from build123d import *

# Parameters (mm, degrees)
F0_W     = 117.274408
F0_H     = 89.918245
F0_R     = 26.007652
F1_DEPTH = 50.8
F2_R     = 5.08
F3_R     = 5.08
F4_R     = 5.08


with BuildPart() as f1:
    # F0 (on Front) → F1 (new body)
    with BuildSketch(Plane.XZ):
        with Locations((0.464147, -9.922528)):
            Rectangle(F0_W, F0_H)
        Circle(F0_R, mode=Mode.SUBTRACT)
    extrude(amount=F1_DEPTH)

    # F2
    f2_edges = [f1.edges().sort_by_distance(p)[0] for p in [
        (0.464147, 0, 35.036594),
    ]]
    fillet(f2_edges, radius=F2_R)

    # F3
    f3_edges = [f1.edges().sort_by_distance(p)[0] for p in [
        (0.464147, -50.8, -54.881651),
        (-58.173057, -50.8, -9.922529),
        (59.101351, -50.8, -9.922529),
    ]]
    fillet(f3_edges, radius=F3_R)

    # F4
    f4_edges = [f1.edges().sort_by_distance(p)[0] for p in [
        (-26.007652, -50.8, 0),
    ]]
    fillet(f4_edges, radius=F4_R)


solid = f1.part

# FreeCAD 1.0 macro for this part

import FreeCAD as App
import Part
import Sketcher


def edges_at(feature, points):
    """Names of the edges that pass closest to the given points."""
    edges = feature.Shape.Edges
    near = lambda p: min(range(len(edges)), key=lambda i: edges[i].distToShape(Part.Vertex(*p))[0])
    return sorted({f"Edge{near(p) + 1}" for p in points})

doc = App.newDocument("Part")
params = doc.addObject("Spreadsheet::Sheet", "Params")
for row, (alias, value) in enumerate([
    ("pad1_length", "2 in"),
    ("fillet_radius", "0.2 in"),
    ("fillet2_radius", "0.2 in"),
    ("fillet3_radius", "0.2 in"),
], start=1):
    params.set(f"A{row}", alias)
    params.set(f"B{row}", "=" + value)
    params.setAlias(f"B{row}", alias)

body = doc.addObject("PartDesign::Body", "Body")

# Sketch on XZ plane
sketch1 = body.newObject("Sketcher::SketchObject", "Sketch")
sketch1.AttachmentSupport = (doc.getObject("XZ_Plane"), [""])
sketch1.MapMode = "FlatFace"
sketch1.addGeometry([
    Part.LineSegment(App.Vector(-58, 35, 0), App.Vector(-58, -55, 0)),  # 0
    Part.LineSegment(App.Vector(-58, -55, 0), App.Vector(59, -55, 0)),  # 1
    Part.LineSegment(App.Vector(59, -55, 0), App.Vector(59, 35, 0)),  # 2
    Part.LineSegment(App.Vector(59, 35, 0), App.Vector(-58, 35, 0)),  # 3
    Part.Circle(App.Vector(0, 0, 0), App.Vector(0, 0, 1), 26),  # 4
], False)
sketch1.addConstraint([
    Sketcher.Constraint("Coincident", 0, 2, 1, 1),
    Sketcher.Constraint("Coincident", 1, 2, 2, 1),
    Sketcher.Constraint("Coincident", 2, 2, 3, 1),
    Sketcher.Constraint("Coincident", 3, 2, 0, 1),
    Sketcher.Constraint("Vertical", 0),
    Sketcher.Constraint("Horizontal", 1),
    Sketcher.Constraint("Vertical", 2),
    Sketcher.Constraint("Horizontal", 3),
    Sketcher.Constraint("Coincident", 4, 3, -1, 1),
    Sketcher.Constraint("Diameter", 4, 52.015304),
    Sketcher.Constraint("DistanceX", 1, 1, 1, 2, 117.274408),
    Sketcher.Constraint("DistanceY", 0, 2, 0, 1, 89.918245),
    Sketcher.Constraint("DistanceY", 0, 2, -1, 1, 54.88165),
    Sketcher.Constraint("DistanceX", -1, 1, 1, 2, 59.101351),
])
pad1 = body.newObject("PartDesign::Pad", "Pad")
pad1.Profile = sketch1
pad1.setExpression("Length", "Params.pad1_length")
doc.recompute()

fillet = body.newObject("PartDesign::Fillet", "Fillet")
fillet.Base = (pad1, edges_at(pad1, [(0.464, 0, 35.037)]))
fillet.setExpression("Radius", "Params.fillet_radius")
doc.recompute()

fillet2 = body.newObject("PartDesign::Fillet", "Fillet001")
fillet2.Base = (fillet, edges_at(fillet, [(0.464, -50.8, -54.882), (-58.173, -50.8, -9.923), (59.101, -50.8, -9.923)]))
fillet2.setExpression("Radius", "Params.fillet2_radius")
doc.recompute()

fillet3 = body.newObject("PartDesign::Fillet", "Fillet002")
fillet3.Base = (fillet2, edges_at(fillet2, [(-26.008, -50.8, 0)]))
fillet3.setExpression("Radius", "Params.fillet3_radius")

doc.recompute()
